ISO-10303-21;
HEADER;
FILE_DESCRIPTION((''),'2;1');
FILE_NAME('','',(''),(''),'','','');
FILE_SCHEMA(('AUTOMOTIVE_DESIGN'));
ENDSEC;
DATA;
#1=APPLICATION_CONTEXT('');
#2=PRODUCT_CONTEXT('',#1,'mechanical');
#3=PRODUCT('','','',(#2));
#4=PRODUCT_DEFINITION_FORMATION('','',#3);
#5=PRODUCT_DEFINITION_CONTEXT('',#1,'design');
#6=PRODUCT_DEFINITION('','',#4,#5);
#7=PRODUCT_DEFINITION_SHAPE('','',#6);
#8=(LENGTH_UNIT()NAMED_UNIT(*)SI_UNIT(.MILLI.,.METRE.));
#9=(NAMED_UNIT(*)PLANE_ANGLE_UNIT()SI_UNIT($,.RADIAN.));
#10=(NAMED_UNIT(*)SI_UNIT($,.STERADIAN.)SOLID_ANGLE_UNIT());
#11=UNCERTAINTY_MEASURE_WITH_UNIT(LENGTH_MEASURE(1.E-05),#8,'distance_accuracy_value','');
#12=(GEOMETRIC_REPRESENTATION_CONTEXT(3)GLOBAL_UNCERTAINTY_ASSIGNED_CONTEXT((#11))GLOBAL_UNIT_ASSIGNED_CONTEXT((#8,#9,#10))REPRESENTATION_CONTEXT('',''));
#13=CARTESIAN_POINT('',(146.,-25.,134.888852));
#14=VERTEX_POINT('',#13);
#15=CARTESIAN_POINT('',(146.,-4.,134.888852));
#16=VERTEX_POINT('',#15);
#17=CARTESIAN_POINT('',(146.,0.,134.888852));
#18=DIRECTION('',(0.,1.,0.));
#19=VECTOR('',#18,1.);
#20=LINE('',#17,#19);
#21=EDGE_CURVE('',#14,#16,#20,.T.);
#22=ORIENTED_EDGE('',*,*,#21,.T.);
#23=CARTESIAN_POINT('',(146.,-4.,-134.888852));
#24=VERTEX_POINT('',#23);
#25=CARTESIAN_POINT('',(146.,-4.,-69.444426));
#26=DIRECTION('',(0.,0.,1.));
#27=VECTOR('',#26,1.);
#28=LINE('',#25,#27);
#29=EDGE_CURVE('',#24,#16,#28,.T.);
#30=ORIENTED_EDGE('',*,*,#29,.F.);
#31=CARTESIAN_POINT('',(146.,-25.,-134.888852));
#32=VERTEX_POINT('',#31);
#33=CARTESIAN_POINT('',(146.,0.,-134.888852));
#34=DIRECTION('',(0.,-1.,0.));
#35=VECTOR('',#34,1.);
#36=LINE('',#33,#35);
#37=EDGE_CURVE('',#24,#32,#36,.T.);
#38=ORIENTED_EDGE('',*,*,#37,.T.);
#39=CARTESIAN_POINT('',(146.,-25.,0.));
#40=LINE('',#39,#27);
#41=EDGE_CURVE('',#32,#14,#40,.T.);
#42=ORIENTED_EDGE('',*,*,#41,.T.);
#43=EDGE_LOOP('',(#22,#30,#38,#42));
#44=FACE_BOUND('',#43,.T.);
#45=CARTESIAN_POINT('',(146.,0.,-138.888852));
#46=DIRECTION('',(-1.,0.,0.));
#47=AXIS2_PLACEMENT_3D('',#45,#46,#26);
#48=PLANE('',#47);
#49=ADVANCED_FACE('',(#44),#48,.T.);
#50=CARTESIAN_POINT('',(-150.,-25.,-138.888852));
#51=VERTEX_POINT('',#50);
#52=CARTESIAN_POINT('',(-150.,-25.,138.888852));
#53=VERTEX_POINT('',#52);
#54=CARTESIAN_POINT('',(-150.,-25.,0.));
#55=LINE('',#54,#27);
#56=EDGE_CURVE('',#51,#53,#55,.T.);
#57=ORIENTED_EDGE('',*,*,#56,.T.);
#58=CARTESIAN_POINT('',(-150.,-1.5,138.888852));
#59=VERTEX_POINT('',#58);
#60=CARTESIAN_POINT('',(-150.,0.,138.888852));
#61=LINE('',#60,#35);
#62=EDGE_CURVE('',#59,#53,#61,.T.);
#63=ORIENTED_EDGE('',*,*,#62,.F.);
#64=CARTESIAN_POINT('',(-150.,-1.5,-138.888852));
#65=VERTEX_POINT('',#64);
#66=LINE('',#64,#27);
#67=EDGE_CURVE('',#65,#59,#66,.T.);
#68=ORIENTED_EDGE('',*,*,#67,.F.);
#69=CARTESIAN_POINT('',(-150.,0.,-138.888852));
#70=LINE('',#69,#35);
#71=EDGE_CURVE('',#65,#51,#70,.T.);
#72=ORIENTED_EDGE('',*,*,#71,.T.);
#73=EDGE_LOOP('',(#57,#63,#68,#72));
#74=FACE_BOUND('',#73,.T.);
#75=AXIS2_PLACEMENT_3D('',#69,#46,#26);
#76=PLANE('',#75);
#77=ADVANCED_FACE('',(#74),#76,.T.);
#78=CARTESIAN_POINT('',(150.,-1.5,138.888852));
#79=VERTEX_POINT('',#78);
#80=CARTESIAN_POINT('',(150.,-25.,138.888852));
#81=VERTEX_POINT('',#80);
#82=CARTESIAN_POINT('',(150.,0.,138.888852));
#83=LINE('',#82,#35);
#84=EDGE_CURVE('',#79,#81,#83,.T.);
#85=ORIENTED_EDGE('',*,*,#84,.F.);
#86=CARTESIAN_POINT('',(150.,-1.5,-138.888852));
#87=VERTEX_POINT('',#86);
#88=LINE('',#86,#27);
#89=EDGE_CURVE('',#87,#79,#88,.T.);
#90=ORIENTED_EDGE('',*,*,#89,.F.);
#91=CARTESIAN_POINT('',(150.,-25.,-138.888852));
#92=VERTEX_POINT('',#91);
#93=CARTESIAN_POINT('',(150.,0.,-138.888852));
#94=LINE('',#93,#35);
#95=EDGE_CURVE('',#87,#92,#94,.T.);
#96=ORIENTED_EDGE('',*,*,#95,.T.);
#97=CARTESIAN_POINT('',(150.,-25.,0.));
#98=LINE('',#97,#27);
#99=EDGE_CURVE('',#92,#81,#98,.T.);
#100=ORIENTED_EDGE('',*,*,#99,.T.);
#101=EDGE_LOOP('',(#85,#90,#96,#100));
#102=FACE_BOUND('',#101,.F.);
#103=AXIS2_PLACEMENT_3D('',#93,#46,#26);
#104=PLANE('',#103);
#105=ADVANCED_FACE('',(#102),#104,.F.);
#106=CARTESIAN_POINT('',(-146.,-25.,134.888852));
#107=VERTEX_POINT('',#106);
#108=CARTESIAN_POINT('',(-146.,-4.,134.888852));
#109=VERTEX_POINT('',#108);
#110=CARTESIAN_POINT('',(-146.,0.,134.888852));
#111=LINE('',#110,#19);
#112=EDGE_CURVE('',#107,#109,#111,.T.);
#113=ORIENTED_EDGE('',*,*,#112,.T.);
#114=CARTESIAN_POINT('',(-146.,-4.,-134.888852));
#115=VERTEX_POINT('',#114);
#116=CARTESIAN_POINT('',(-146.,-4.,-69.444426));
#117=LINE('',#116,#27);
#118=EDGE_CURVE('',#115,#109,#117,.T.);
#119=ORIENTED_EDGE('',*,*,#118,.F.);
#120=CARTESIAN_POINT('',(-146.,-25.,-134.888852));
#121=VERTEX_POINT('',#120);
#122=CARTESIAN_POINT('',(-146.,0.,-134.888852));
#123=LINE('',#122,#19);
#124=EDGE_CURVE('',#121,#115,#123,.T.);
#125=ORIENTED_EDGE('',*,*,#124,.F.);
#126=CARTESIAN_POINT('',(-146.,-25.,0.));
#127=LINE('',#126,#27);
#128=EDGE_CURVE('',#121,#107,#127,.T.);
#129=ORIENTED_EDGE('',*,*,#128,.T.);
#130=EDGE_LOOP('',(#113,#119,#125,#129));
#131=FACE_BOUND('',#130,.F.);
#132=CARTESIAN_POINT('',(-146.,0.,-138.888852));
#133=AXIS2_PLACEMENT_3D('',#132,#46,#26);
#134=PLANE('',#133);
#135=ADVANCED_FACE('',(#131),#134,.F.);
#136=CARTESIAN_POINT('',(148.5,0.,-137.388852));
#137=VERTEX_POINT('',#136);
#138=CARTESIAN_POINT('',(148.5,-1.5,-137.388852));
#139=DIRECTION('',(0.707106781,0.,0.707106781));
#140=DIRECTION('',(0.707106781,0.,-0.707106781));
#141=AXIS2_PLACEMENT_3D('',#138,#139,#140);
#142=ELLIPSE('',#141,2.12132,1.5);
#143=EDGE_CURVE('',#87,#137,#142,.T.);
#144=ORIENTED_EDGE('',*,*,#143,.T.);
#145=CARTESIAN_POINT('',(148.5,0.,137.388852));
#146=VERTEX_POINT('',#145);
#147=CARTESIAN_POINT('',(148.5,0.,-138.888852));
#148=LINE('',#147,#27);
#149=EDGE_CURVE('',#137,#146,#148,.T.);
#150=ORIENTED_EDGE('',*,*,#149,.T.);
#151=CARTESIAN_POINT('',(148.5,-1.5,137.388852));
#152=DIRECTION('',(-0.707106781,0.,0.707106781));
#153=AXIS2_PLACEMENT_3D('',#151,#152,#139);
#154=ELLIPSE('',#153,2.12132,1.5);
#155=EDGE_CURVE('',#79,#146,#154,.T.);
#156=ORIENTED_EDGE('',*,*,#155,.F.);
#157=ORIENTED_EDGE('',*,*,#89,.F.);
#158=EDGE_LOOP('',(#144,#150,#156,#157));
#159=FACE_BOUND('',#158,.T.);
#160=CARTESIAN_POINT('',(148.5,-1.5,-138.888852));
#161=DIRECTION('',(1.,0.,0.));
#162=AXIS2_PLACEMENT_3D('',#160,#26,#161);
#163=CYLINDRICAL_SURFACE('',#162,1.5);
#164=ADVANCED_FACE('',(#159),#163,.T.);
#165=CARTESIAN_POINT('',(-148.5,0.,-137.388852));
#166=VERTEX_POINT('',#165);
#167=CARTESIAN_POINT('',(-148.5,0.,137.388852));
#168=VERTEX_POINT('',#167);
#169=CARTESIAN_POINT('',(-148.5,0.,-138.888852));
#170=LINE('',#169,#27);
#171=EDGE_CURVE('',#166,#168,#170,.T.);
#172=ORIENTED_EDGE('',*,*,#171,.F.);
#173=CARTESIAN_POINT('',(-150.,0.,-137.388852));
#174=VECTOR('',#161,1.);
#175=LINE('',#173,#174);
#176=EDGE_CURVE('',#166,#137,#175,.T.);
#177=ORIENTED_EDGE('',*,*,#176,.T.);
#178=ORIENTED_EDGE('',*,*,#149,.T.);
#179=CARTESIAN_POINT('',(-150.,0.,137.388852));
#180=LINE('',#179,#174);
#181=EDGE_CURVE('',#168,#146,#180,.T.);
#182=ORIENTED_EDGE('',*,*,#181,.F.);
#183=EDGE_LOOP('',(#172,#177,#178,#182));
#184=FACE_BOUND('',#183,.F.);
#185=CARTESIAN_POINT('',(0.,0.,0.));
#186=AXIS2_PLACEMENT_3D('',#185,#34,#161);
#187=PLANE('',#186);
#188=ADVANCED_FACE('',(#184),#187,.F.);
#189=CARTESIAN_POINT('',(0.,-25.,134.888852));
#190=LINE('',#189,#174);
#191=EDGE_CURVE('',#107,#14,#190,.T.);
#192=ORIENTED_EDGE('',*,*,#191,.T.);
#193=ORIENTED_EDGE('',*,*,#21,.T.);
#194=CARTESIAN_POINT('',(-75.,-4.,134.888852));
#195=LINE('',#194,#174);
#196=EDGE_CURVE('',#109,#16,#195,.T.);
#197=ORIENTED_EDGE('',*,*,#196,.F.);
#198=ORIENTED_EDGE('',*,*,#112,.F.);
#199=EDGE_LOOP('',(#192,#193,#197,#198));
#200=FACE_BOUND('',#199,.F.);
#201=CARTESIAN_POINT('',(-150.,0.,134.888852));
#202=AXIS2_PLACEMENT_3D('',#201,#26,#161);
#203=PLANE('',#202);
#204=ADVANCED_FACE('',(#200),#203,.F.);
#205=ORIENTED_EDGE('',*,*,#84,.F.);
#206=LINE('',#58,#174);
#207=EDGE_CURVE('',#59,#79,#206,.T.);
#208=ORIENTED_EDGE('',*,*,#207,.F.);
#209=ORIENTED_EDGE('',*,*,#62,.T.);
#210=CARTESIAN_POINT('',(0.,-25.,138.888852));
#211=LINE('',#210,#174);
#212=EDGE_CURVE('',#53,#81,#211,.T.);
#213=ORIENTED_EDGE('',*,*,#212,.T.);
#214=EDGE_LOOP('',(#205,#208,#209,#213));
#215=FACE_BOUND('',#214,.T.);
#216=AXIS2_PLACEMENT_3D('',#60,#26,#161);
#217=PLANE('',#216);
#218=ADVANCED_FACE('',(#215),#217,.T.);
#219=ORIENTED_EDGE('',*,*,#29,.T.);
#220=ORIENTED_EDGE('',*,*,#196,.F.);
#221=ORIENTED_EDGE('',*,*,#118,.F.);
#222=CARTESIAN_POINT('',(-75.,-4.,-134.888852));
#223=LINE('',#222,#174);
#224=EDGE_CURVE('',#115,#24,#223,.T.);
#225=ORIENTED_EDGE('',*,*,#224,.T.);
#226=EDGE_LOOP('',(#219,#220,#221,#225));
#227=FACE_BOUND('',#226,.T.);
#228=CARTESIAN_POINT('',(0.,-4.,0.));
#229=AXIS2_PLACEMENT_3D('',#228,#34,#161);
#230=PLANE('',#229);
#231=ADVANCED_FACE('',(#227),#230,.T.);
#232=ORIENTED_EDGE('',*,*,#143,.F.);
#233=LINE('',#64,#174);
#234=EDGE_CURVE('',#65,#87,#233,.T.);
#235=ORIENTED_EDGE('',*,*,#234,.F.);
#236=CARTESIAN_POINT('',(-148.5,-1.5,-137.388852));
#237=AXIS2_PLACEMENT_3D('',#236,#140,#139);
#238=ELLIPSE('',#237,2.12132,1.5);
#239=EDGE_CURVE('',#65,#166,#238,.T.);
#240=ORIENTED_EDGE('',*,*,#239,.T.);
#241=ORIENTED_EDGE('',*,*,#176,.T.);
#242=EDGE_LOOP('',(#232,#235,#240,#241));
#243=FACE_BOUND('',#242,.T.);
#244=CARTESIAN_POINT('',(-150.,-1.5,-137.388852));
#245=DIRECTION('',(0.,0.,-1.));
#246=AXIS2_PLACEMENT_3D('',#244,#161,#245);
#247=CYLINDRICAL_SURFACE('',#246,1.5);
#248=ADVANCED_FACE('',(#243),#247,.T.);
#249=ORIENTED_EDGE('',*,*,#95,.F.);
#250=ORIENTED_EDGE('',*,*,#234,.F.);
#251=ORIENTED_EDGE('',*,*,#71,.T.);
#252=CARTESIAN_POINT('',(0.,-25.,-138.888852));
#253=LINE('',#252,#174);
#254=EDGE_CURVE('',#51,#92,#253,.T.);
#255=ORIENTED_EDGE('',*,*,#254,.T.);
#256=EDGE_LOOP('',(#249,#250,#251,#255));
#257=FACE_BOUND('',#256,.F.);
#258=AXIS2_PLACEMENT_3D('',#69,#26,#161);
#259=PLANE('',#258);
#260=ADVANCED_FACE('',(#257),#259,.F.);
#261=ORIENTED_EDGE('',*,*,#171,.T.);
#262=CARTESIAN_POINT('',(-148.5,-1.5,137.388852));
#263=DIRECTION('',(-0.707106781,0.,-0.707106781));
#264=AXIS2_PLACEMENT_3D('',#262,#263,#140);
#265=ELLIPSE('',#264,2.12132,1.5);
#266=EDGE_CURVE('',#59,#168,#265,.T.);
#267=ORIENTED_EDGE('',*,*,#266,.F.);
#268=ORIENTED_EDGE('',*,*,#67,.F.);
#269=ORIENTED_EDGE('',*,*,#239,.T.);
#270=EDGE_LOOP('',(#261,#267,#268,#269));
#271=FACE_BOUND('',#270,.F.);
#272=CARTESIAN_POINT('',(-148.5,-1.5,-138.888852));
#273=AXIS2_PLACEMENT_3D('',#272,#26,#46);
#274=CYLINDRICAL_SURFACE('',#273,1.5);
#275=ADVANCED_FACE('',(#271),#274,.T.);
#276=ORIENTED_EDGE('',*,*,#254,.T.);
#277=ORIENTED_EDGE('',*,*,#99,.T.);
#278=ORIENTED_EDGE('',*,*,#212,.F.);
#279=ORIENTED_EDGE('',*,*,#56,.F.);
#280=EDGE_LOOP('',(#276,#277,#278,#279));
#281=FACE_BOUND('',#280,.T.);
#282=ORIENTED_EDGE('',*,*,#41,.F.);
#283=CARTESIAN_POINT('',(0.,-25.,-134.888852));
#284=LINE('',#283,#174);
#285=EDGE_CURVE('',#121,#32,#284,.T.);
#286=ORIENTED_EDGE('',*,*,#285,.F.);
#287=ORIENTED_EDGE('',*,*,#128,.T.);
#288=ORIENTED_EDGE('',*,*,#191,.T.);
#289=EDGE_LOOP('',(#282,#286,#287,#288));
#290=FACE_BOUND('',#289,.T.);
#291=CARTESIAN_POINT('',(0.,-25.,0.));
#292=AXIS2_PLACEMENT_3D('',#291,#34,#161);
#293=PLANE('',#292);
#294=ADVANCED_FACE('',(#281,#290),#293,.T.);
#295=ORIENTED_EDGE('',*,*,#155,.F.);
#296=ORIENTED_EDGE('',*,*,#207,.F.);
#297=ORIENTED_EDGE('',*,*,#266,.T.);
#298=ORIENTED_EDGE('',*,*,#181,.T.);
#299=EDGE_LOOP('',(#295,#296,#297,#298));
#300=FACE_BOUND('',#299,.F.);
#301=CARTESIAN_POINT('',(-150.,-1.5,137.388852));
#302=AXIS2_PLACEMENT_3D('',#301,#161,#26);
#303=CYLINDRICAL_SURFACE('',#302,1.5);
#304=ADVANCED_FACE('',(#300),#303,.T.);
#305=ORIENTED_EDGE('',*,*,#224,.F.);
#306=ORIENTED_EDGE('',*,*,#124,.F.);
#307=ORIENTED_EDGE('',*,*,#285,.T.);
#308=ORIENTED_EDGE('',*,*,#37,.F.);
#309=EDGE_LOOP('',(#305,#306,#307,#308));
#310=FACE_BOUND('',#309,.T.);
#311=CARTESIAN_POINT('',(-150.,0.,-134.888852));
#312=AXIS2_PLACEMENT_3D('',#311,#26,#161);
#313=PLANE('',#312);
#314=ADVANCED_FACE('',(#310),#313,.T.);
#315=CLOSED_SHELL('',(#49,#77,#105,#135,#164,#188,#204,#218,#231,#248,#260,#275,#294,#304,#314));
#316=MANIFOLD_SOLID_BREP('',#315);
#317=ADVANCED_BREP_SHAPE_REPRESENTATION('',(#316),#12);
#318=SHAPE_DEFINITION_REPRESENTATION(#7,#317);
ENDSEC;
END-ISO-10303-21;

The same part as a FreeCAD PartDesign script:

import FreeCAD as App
import Part
import Sketcher

V = App.Vector


def edges_at(feature, points):
    """Names of the edges that pass closest to the given points."""
    edges = feature.Shape.Edges
    near = lambda p: min(range(len(edges)), key=lambda i: edges[i].distToShape(Part.Vertex(*p))[0])
    return sorted({f"Edge{near(p) + 1}" for p in points})


def faces_at(feature, points):
    """Names of the faces that lie closest to the given points."""
    faces = feature.Shape.Faces
    near = lambda p: min(range(len(faces)), key=lambda i: faces[i].distToShape(Part.Vertex(*p))[0])
    return sorted({f"Face{near(p) + 1}" for p in points})

doc = App.newDocument("Part")
body = doc.addObject("PartDesign::Body", "Body")

# Sketch on XZ plane
sketch1 = doc.addObject("Sketcher::SketchObject", "Sketch")
body.addObject(sketch1)
sketch1.AttachmentSupport = (doc.XZ_Plane, [""])
sketch1.MapMode = "FlatFace"
sketch1.addGeometry([
    Part.LineSegment(V(-150, 139, 0), V(-150, -139, 0)),
    Part.LineSegment(V(-150, -139, 0), V(150, -139, 0)),
    Part.LineSegment(V(150, -139, 0), V(150, 139, 0)),
    Part.LineSegment(V(150, 139, 0), V(-150, 139, 0)),
], False)
sketch1.addConstraint([
    Sketcher.Constraint("Coincident", 0, 2, 1, 1),
    Sketcher.Constraint("Coincident", 1, 2, 2, 1),
    Sketcher.Constraint("Coincident", 2, 2, 3, 1),
    Sketcher.Constraint("Coincident", 3, 2, 0, 1),
    Sketcher.Constraint("Vertical", 0),
    Sketcher.Constraint("Horizontal", 1),
    Sketcher.Constraint("Vertical", 2),
    Sketcher.Constraint("Horizontal", 3),
    Sketcher.Constraint("Symmetric", 0, 2, 2, 2, -1, 1),
    Sketcher.Constraint("DistanceX", 1, 1, 1, 2, 300.0),
    Sketcher.Constraint("DistanceY", 0, 2, 0, 1, 277.777704),
])
pad1 = doc.addObject("PartDesign::Pad", "Pad")
body.addObject(pad1)
pad1.Profile = sketch1
pad1.Length = 25
doc.recompute()

thickness = doc.addObject("PartDesign::Thickness", "Thickness")
body.addObject(thickness)
thickness.Base = (pad1, faces_at(pad1, [(0, -25, 0)]))
thickness.Value = 4
thickness.Reversed = True
thickness.Join = "Arc"
doc.recompute()

fillet = doc.addObject("PartDesign::Fillet", "Fillet")
body.addObject(fillet)
fillet.Base = (thickness, edges_at(thickness, [
    (0, 0, -138.889),
    (150, 0, 0),
    (0, 0, 138.889),
    (-150, 0, 0),
]))
fillet.Radius = 1.5

doc.recompute()
